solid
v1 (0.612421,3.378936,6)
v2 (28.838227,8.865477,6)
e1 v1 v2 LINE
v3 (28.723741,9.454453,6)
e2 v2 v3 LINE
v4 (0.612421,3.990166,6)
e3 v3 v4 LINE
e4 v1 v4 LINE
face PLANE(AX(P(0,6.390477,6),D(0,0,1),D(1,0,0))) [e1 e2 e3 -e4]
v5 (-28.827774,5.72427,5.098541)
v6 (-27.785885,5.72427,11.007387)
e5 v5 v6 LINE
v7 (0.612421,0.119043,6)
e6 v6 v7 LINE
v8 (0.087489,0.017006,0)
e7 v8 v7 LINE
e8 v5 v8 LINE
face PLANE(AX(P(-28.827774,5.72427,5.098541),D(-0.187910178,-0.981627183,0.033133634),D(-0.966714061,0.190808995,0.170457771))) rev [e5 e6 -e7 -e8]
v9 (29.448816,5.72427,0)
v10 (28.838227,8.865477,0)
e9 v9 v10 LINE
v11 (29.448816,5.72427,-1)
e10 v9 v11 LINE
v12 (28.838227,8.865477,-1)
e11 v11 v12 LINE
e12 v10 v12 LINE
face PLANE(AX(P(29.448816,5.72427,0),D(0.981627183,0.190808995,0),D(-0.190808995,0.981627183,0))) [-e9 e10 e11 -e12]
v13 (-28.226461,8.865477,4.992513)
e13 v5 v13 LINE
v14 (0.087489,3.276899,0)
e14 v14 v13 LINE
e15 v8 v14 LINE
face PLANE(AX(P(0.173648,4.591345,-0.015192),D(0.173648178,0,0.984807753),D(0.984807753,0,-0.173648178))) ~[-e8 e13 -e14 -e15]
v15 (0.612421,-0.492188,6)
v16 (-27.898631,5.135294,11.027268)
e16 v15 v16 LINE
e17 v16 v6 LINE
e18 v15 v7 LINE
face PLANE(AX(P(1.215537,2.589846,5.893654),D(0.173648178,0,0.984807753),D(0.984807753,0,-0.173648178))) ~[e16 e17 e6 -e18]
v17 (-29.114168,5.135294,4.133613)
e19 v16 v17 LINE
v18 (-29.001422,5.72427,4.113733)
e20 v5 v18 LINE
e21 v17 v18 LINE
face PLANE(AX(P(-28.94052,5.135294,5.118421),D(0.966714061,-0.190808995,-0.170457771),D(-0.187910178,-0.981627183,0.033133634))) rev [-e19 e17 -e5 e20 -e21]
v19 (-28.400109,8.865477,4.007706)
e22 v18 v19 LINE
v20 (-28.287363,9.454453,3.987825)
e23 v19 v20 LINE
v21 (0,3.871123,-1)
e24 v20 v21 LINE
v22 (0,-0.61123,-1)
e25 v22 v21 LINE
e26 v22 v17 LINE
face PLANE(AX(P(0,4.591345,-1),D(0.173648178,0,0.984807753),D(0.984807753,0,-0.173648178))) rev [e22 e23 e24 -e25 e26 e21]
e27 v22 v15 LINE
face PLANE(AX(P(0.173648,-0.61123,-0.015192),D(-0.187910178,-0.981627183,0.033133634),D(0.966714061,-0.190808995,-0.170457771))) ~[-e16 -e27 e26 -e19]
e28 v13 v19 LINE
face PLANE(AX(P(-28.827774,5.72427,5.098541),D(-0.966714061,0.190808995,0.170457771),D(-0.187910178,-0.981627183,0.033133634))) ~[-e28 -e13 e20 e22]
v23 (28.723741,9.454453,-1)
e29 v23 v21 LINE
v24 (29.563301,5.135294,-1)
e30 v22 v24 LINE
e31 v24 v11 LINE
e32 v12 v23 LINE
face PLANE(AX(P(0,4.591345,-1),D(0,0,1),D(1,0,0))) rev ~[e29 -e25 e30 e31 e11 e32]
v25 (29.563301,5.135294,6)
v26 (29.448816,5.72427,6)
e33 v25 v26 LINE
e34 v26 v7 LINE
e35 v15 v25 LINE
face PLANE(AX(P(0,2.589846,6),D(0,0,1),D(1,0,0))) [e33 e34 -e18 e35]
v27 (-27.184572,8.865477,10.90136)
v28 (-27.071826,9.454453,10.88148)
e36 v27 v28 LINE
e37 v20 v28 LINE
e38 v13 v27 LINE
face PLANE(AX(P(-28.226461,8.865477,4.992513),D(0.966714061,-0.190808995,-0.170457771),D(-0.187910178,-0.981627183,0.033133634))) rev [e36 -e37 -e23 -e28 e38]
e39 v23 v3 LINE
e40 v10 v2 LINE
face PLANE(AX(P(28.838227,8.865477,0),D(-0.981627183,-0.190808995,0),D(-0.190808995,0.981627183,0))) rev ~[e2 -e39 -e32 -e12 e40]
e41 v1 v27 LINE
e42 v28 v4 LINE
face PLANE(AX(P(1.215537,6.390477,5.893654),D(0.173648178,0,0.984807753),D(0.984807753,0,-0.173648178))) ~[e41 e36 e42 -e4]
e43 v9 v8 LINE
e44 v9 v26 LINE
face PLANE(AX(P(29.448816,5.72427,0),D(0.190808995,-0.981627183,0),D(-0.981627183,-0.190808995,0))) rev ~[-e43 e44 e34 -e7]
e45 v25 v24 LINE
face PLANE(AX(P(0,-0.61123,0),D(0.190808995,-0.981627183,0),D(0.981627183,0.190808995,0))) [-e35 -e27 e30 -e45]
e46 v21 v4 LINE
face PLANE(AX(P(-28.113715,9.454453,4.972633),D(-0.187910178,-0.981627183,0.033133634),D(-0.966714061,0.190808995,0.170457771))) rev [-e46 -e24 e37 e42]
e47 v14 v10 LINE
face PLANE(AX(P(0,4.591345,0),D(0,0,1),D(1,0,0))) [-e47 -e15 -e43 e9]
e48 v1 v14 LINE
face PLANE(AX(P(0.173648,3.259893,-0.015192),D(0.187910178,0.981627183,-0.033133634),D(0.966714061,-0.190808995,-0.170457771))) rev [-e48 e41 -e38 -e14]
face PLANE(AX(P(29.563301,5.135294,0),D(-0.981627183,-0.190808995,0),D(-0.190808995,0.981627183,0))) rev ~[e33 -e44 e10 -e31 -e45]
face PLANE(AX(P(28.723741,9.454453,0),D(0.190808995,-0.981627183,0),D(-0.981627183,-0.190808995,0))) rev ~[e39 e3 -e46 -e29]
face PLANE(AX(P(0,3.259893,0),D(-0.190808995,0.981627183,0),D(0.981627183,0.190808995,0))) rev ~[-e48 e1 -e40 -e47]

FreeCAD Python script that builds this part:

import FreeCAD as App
import Part
import Sketcher

V = App.Vector
Q = App.Units.Quantity

doc = App.newDocument("Part")
params = doc.addObject("Spreadsheet::Sheet", "Params")
for row, (alias, value) in enumerate([
    ("sketch1_length", "3.2 mm"),
    ("sketch1_length2", "0.6 mm"),
    ("pad1_length", "1 mm"),
    ("sketch2_length", "30 mm"),
    ("sketch2_length2", "0.6 mm"),
    ("pad2_length", "6 mm"),
    ("sketch3_height", "4 mm"),
    ("pocket1_length", "25 mm"),
], start=1):
    params.set(f"A{row}", alias)
    params.set(f"B{row}", "=" + value)
    params.setAlias(f"B{row}", alias)

body = doc.addObject("PartDesign::Body", "Body")

# Sketch on XY plane
sketch1 = doc.addObject("Sketcher::SketchObject", "Sketch")
body.addObject(sketch1)
sketch1.AttachmentSupport = (doc.XY_Plane, [""])
sketch1.MapMode = "FlatFace"
sketch1.addGeometry(Part.LineSegment(V(29.4, 5.7, 0), V(28.8, 8.9, 0)), False)
sketch1.addGeometry(Part.LineSegment(V(28.8, 8.9, 0), V(28.7, 9.5, 0)), False)
sketch1.addGeometry(Part.LineSegment(V(28.7, 9.5, 0), V(0, 3.9, 0)), False)
sketch1.addGeometry(Part.LineSegment(V(0, 3.9, 0), V(-28.7, 9.5, 0)), False)
sketch1.addGeometry(Part.LineSegment(V(-28.7, 9.5, 0), V(-28.8, 8.9, 0)), False)
sketch1.addGeometry(Part.LineSegment(V(-28.8, 8.9, 0), V(-29.4, 5.7, 0)), False)
sketch1.addGeometry(Part.LineSegment(V(-29.4, 5.7, 0), V(-29.6, 5.1, 0)), False)
sketch1.addGeometry(Part.LineSegment(V(-29.6, 5.1, 0), V(0, -0.6, 0)), False)
sketch1.addGeometry(Part.LineSegment(V(0, -0.6, 0), V(29.6, 5.1, 0)), False)
sketch1.addGeometry(Part.LineSegment(V(29.6, 5.1, 0), V(29.4, 5.7, 0)), False)
sketch1.addConstraint(Sketcher.Constraint("Coincident", 0, 2, 1, 1))
sketch1.addConstraint(Sketcher.Constraint("Coincident", 1, 2, 2, 1))
sketch1.addConstraint(Sketcher.Constraint("Coincident", 2, 2, 3, 1))
sketch1.addConstraint(Sketcher.Constraint("Coincident", 3, 2, 4, 1))
sketch1.addConstraint(Sketcher.Constraint("Coincident", 4, 2, 5, 1))
sketch1.addConstraint(Sketcher.Constraint("Coincident", 5, 2, 6, 1))
sketch1.addConstraint(Sketcher.Constraint("Coincident", 6, 2, 7, 1))
sketch1.addConstraint(Sketcher.Constraint("Coincident", 7, 2, 8, 1))
sketch1.addConstraint(Sketcher.Constraint("Coincident", 8, 2, 9, 1))
sketch1.addConstraint(Sketcher.Constraint("Coincident", 9, 2, 0, 1))
sketch1.addConstraint(Sketcher.Constraint("Symmetric", 1, 2, 3, 2, -2))
sketch1.addConstraint(Sketcher.Constraint("Symmetric", 0, 2, 4, 2, -2))
sketch1.addConstraint(Sketcher.Constraint("Symmetric", 6, 2, 8, 2, -2))
sketch1.addConstraint(Sketcher.Constraint("Symmetric", 5, 2, 9, 2, -2))
sketch1.addConstraint(Sketcher.Constraint("PointOnObject", 2, 2, -2))
sketch1.addConstraint(Sketcher.Constraint("PointOnObject", 7, 2, -2))
sketch1.addConstraint(Sketcher.Constraint("Parallel", 0, 1))
sketch1.addConstraint(Sketcher.Constraint("Perpendicular", 1, 2))
sketch1.addConstraint(Sketcher.Constraint("Parallel", 5, 6))
sketch1.addConstraint(Sketcher.Constraint("Perpendicular", 6, 7))
sketch1.addConstraint(Sketcher.Constraint("Equal", 4, 6))
sketch1.addConstraint(Sketcher.Constraint("Angle", 0, Q("101 deg")))
sketch1.addConstraint(Sketcher.Constraint("Distance", 0, 3.2))
sketch1.addConstraint(Sketcher.Constraint("Distance", 1, 0.6))
sketch1.addConstraint(Sketcher.Constraint("DistanceX", 6, 2, -1, 1, 29.563301))
sketch1.addConstraint(Sketcher.Constraint("DistanceY", -1, 1, 5, 2, 5.72427))
sketch1.setExpression("Constraints[22]", "Params.sketch1_length")
sketch1.setExpression("Constraints[23]", "Params.sketch1_length2")
pad1 = doc.addObject("PartDesign::Pad", "Pad")
body.addObject(pad1)
pad1.Profile = sketch1
pad1.setExpression("Length", "Params.pad1_length")
pad1.Reversed = True

# Sketch on XY plane
sketch2 = doc.addObject("Sketcher::SketchObject", "Sketch001")
body.addObject(sketch2)
sketch2.AttachmentSupport = (doc.XY_Plane, [""])
sketch2.MapMode = "FlatFace"
sketch2.addGeometry(Part.LineSegment(V(0, 3.3, 0), V(28.8, 8.9, 0)), False)
sketch2.addGeometry(Part.LineSegment(V(28.8, 8.9, 0), V(28.7, 9.5, 0)), False)
sketch2.addGeometry(Part.LineSegment(V(28.7, 9.5, 0), V(0, 3.9, 0)), False)
sketch2.addGeometry(Part.LineSegment(V(0, 3.9, 0), V(-28.7, 9.5, 0)), False)
sketch2.addGeometry(Part.LineSegment(V(-28.7, 9.5, 0), V(-28.8, 8.9, 0)), False)
sketch2.addGeometry(Part.LineSegment(V(-28.8, 8.9, 0), V(0, 3.3, 0)), False)
sketch2.addGeometry(Part.LineSegment(V(29.4, 5.7, 0), V(0, 0, 0)), False)
sketch2.addGeometry(Part.LineSegment(V(0, 0, 0), V(-29.4, 5.7, 0)), False)
sketch2.addGeometry(Part.LineSegment(V(-29.4, 5.7, 0), V(-29.6, 5.1, 0)), False)
sketch2.addGeometry(Part.LineSegment(V(-29.6, 5.1, 0), V(0, -0.6, 0)), False)
sketch2.addGeometry(Part.LineSegment(V(0, -0.6, 0), V(29.6, 5.1, 0)), False)
sketch2.addGeometry(Part.LineSegment(V(29.6, 5.1, 0), V(29.4, 5.7, 0)), False)
sketch2.addConstraint(Sketcher.Constraint("Coincident", 0, 2, 1, 1))
sketch2.addConstraint(Sketcher.Constraint("Coincident", 1, 2, 2, 1))
sketch2.addConstraint(Sketcher.Constraint("Coincident", 2, 2, 3, 1))
sketch2.addConstraint(Sketcher.Constraint("Coincident", 3, 2, 4, 1))
sketch2.addConstraint(Sketcher.Constraint("Coincident", 4, 2, 5, 1))
sketch2.addConstraint(Sketcher.Constraint("Coincident", 5, 2, 0, 1))
sketch2.addConstraint(Sketcher.Constraint("Coincident", 6, 2, 7, 1))
sketch2.addConstraint(Sketcher.Constraint("Coincident", 7, 2, 8, 1))
sketch2.addConstraint(Sketcher.Constraint("Coincident", 8, 2, 9, 1))
sketch2.addConstraint(Sketcher.Constraint("Coincident", 9, 2, 10, 1))
sketch2.addConstraint(Sketcher.Constraint("Coincident", 10, 2, 11, 1))
sketch2.addConstraint(Sketcher.Constraint("Coincident", 11, 2, 6, 1))
sketch2.addConstraint(Sketcher.Constraint("Coincident", 6, 2, -1, 1))
sketch2.addConstraint(Sketcher.Constraint("Symmetric", 1, 2, 3, 2, -2))
sketch2.addConstraint(Sketcher.Constraint("Symmetric", 0, 2, 4, 2, -2))
sketch2.addConstraint(Sketcher.Constraint("Symmetric", 8, 2, 10, 2, -2))
sketch2.addConstraint(Sketcher.Constraint("Symmetric", 7, 2, 11, 2, -2))
sketch2.addConstraint(Sketcher.Constraint("PointOnObject", 2, 2, -2))
sketch2.addConstraint(Sketcher.Constraint("PointOnObject", 5, 2, -2))
sketch2.addConstraint(Sketcher.Constraint("PointOnObject", 9, 2, -2))
sketch2.addConstraint(Sketcher.Constraint("Perpendicular", 0, 1))
sketch2.addConstraint(Sketcher.Constraint("Perpendicular", 1, 2))
sketch2.addConstraint(Sketcher.Constraint("Parallel", 2, 6))
sketch2.addConstraint(Sketcher.Constraint("Perpendicular", 7, 8))
sketch2.addConstraint(Sketcher.Constraint("Perpendicular", 8, 9))
sketch2.addConstraint(Sketcher.Constraint("Equal", 4, 8))
sketch2.addConstraint(Sketcher.Constraint("Angle", 0, Q("11 deg")))
sketch2.addConstraint(Sketcher.Constraint("Distance", 6, 30.0))
sketch2.addConstraint(Sketcher.Constraint("Distance", 1, 0.6))
sketch2.addConstraint(Sketcher.Constraint("DistanceY", 5, 2, 8, 2, 1.8754))
sketch2.addConstraint(Sketcher.Constraint("DistanceX", -1, 1, 1, 2, 28.723741))
sketch2.setExpression("Constraints[27]", "Params.sketch2_length")
sketch2.setExpression("Constraints[28]", "Params.sketch2_length2")
pad2 = doc.addObject("PartDesign::Pad", "Pad001")
body.addObject(pad2)
pad2.Profile = sketch2
pad2.setExpression("Length", "Params.pad2_length")

# Sketch on an angled plane
sketch3 = doc.addObject("Sketcher::SketchObject", "Sketch002")
body.addObject(sketch3)
sketch3.Placement = App.Placement(V(0.725074, 3.730183, 0), App.Rotation(V(-0.981627183, 0.190808995, 0), V(0, 0, 0.999999999), V(0.190808995, 0.981627183, 0), "ZXY"))
sketch3.addGeometry(Part.LineSegment(V(30, 2, 0), V(30, 6, 0)), False)
sketch3.addGeometry(Part.LineSegment(V(30, 6, 0), V(8.7, 6, 0)), False)
sketch3.addGeometry(Part.LineSegment(V(8.7, 6, 0), V(30, 2, 0)), False)
sketch3.addConstraint(Sketcher.Constraint("Coincident", 0, 2, 1, 1))
sketch3.addConstraint(Sketcher.Constraint("Coincident", 1, 2, 2, 1))
sketch3.addConstraint(Sketcher.Constraint("Coincident", 2, 2, 0, 1))
sketch3.addConstraint(Sketcher.Constraint("Vertical", 0))
sketch3.addConstraint(Sketcher.Constraint("Horizontal", 1))
sketch3.addConstraint(Sketcher.Constraint("DistanceY", 0, 1, 0, 2, 4.0))
sketch3.addConstraint(Sketcher.Constraint("DistanceX", -1, 1, 0, 2, 30.0))
sketch3.addConstraint(Sketcher.Constraint("DistanceY", -1, 1, 0, 2, 6.0))
sketch3.addConstraint(Sketcher.Constraint("DistanceX", 1, 2, 1, 1, 21.261355))
sketch3.setExpression("Constraints[5]", "Params.sketch3_height")
pocket1 = doc.addObject("PartDesign::Pocket", "Pocket")
body.addObject(pocket1)
pocket1.Profile = sketch3
pocket1.setExpression("Length", "Params.pocket1_length")

# Sketch on XZ plane
sketch4 = doc.addObject("Sketcher::SketchObject", "Sketch003")
body.addObject(sketch4)
sketch4.AttachmentSupport = (doc.XZ_Plane, [""])
sketch4.MapMode = "FlatFace"
sketch4.AttachmentOffset = App.Placement(V(0, 0, 10), App.Rotation())
sketch4.addGeometry(Part.LineSegment(V(-30.2, -2.3, 0), V(0, -2.3, 0)), False)
sketch4.addGeometry(Part.LineSegment(V(0, -2.3, 0), V(0, -1, 0)), False)
sketch4.addGeometry(Part.LineSegment(V(0, -1, 0), V(1.1, 11.1, 0)), False)
sketch4.addGeometry(Part.LineSegment(V(1.1, 11.1, 0), V(0, 10.6, 0)), False)
sketch4.addGeometry(Part.LineSegment(V(0, 10.6, 0), V(-30.2, 10.6, 0)), False)
sketch4.addGeometry(Part.LineSegment(V(-30.2, 10.6, 0), V(-30.2, -2.3, 0)), False)
sketch4.addConstraint(Sketcher.Constraint("Coincident", 0, 2, 1, 1))
sketch4.addConstraint(Sketcher.Constraint("Coincident", 1, 2, 2, 1))
sketch4.addConstraint(Sketcher.Constraint("Coincident", 2, 2, 3, 1))
sketch4.addConstraint(Sketcher.Constraint("Coincident", 3, 2, 4, 1))
sketch4.addConstraint(Sketcher.Constraint("Coincident", 4, 2, 5, 1))
sketch4.addConstraint(Sketcher.Constraint("Coincident", 5, 2, 0, 1))
sketch4.addConstraint(Sketcher.Constraint("Horizontal", 0))
sketch4.addConstraint(Sketcher.Constraint("Vertical", 1))
sketch4.addConstraint(Sketcher.Constraint("Horizontal", 4))
sketch4.addConstraint(Sketcher.Constraint("Vertical", 5))
sketch4.addConstraint(Sketcher.Constraint("PointOnObject", 0, 2, -2))
sketch4.addConstraint(Sketcher.Constraint("PointOnObject", 3, 2, -2))
sketch4.addConstraint(Sketcher.Constraint("Angle", 2, Q("85 deg")))
sketch4.addConstraint(Sketcher.Constraint("DistanceY", 1, 2, -1, 1, 1.0))
sketch4.addConstraint(Sketcher.Constraint("DistanceX", 4, 2, 2, 2, 31.3069))
sketch4.addConstraint(Sketcher.Constraint("DistanceX", 0, 1, 0, 2, 30.247215))
sketch4.addConstraint(Sketcher.Constraint("DistanceY", 1, 1, 1, 2, 1.253943))
sketch4.addConstraint(Sketcher.Constraint("DistanceY", 5, 2, 5, 1, 12.835117))
pocket2 = doc.addObject("PartDesign::Pocket", "Pocket001")
body.addObject(pocket2)
pocket2.Profile = sketch4
pocket2.Type = "ThroughAll"
body2 = doc.addObject("PartDesign::Body", "Body001")
doc.recompute()

body2.BaseFeature = body
doc.recompute()

mirroring = doc.addObject("Part::Mirroring", "Mirroring")
mirroring.Source = body
mirroring.Base = V(0.233806, 1.675394, 1.672414)
mirroring.Normal = V(-0.996194698, 0, 0.087155743)
body3 = doc.addObject("PartDesign::Body", "Body002")
body3.BaseFeature = mirroring
boolean = doc.addObject("PartDesign::Boolean", "Boolean")
body2.addObject(boolean)
boolean.Type = "Fuse"
boolean.addObjects([body3])
doc.recompute()
mirroring.Visibility = False

doc.recompute()
